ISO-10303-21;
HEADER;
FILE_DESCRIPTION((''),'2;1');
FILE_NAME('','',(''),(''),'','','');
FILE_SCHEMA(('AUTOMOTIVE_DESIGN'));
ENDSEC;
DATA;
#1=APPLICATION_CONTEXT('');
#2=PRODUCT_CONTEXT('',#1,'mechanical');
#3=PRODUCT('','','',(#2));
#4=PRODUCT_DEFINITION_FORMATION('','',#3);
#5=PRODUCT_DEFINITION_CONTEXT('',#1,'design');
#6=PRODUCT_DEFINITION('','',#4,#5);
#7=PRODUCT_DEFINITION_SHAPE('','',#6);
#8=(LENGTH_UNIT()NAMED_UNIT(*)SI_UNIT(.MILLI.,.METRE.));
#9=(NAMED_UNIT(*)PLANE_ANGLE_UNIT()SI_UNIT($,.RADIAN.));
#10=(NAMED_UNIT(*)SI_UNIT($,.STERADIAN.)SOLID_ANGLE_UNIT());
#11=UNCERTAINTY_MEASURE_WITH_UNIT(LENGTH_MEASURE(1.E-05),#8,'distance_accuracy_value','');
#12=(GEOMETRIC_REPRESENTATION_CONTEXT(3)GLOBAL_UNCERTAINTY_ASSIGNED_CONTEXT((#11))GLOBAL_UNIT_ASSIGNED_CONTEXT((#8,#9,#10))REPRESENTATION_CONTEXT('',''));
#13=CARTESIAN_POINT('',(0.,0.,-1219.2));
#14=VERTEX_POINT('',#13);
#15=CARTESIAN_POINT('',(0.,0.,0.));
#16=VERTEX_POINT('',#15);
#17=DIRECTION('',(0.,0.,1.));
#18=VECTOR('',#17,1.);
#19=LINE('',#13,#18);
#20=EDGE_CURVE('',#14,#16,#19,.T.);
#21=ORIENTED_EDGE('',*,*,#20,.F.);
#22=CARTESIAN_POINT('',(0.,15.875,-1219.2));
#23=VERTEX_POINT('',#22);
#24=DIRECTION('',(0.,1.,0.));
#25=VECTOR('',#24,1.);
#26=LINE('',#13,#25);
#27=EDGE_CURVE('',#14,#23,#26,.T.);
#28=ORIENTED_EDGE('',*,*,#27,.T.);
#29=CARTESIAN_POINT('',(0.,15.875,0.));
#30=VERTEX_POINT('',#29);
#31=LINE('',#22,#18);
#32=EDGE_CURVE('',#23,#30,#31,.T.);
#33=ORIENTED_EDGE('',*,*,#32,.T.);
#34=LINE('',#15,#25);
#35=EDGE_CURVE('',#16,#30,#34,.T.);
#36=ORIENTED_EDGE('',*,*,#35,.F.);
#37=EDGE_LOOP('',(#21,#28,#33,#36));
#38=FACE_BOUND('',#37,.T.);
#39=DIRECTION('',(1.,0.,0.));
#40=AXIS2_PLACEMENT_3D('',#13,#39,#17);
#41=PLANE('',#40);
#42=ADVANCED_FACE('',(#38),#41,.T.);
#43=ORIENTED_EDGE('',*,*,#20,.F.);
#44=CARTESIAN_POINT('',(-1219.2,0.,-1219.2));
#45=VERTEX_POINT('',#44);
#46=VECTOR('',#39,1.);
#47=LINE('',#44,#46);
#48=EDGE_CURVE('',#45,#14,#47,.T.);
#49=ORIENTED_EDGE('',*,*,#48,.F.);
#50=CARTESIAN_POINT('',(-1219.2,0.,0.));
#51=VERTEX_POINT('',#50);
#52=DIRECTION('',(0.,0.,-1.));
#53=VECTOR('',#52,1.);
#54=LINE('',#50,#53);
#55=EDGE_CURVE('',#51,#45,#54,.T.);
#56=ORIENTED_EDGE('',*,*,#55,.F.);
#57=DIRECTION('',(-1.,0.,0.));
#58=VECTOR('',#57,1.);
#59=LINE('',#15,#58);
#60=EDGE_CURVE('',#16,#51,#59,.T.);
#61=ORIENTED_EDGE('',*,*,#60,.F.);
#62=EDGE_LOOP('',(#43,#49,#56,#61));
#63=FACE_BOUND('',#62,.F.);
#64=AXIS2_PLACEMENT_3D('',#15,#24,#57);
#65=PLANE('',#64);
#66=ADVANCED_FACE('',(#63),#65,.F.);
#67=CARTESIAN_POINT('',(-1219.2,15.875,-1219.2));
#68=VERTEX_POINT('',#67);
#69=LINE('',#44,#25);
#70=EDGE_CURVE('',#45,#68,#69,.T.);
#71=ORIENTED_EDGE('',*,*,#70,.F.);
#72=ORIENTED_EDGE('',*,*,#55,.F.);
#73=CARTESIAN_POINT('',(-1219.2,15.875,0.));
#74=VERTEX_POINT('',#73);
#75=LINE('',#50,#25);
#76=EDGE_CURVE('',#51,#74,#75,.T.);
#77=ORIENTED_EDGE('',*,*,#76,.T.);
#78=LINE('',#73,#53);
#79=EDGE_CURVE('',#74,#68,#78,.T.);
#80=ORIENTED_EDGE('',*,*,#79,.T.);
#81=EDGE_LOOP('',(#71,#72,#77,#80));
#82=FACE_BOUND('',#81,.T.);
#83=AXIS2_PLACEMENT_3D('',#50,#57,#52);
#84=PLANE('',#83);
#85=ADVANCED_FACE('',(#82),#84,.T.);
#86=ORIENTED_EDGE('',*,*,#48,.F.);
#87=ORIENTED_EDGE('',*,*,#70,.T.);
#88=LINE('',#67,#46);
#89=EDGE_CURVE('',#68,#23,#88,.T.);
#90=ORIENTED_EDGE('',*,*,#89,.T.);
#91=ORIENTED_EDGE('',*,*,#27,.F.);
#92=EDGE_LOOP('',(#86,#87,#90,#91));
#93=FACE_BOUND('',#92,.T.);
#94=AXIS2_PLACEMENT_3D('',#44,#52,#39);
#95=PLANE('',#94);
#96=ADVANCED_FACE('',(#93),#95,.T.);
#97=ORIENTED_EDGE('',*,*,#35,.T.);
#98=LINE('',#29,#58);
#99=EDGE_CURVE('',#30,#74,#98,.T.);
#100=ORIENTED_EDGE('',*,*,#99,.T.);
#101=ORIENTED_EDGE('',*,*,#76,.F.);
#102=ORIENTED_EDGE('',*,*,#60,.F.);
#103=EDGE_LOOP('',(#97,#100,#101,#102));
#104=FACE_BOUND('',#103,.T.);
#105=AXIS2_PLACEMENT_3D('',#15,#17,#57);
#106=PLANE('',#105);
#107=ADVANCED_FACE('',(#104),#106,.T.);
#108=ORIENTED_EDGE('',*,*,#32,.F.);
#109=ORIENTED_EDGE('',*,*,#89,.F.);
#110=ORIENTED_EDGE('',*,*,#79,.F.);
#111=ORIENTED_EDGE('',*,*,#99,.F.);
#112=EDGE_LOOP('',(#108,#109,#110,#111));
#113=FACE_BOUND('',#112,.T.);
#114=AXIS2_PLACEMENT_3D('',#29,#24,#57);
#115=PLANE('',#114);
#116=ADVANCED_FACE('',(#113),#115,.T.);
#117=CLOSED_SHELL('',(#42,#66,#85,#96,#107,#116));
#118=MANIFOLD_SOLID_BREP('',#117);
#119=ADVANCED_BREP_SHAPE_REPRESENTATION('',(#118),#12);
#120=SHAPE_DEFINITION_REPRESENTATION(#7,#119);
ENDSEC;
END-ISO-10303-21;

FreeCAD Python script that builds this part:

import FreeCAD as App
import Part
import Sketcher

V = App.Vector
Q = App.Units.Quantity


def add_polygon(sketch, points):
    """Adds a closed chain of lines whose ends are joined by coincident constraints."""
    first, n = sketch.GeometryCount, len(points)
    for a, b in zip(points, points[1:] + points[:1]):
        sketch.addGeometry(Part.LineSegment(App.Vector(*a, 0), App.Vector(*b, 0)), False)
    for i in range(n):
        sketch.addConstraint(Sketcher.Constraint("Coincident", first + i, 2, first + (i + 1) % n, 1))

doc = App.newDocument("Part")
params = doc.addObject("Spreadsheet::Sheet", "Params")
for row, (alias, value) in enumerate([
    ("sketch1_width", "48 in"),
    ("pad1_length", "0.625 in"),
], start=1):
    params.set(f"A{row}", alias)
    params.set(f"B{row}", "=" + value)
    params.setAlias(f"B{row}", alias)

body = doc.addObject("PartDesign::Body", "Body")

# Sketch on XZ plane
sketch1 = doc.addObject("Sketcher::SketchObject", "Sketch")
body.addObject(sketch1)
sketch1.AttachmentSupport = (doc.XZ_Plane, [""])
sketch1.MapMode = "FlatFace"
add_polygon(sketch1, [(-1219, 0), (0, 0), (0, -1219), (-1219, -1219)])  # lines 0-3
sketch1.addConstraint([
    Sketcher.Constraint("Horizontal", 0),
    Sketcher.Constraint("Vertical", 1),
    Sketcher.Constraint("Horizontal", 2),
    Sketcher.Constraint("Vertical", 3),
    Sketcher.Constraint("Coincident", 0, 2, -1, 1),
    Sketcher.Constraint("Equal", 2, 1),
    Sketcher.Constraint("DistanceX", 0, 1, 0, 2, Q("48 in")),
])
sketch1.setExpression("Constraints[10]", "Params.sketch1_width")
pad1 = doc.addObject("PartDesign::Pad", "Pad")
body.addObject(pad1)
pad1.Profile = sketch1
pad1.setExpression("Length", "Params.pad1_length")
pad1.Reversed = True

doc.recompute()
